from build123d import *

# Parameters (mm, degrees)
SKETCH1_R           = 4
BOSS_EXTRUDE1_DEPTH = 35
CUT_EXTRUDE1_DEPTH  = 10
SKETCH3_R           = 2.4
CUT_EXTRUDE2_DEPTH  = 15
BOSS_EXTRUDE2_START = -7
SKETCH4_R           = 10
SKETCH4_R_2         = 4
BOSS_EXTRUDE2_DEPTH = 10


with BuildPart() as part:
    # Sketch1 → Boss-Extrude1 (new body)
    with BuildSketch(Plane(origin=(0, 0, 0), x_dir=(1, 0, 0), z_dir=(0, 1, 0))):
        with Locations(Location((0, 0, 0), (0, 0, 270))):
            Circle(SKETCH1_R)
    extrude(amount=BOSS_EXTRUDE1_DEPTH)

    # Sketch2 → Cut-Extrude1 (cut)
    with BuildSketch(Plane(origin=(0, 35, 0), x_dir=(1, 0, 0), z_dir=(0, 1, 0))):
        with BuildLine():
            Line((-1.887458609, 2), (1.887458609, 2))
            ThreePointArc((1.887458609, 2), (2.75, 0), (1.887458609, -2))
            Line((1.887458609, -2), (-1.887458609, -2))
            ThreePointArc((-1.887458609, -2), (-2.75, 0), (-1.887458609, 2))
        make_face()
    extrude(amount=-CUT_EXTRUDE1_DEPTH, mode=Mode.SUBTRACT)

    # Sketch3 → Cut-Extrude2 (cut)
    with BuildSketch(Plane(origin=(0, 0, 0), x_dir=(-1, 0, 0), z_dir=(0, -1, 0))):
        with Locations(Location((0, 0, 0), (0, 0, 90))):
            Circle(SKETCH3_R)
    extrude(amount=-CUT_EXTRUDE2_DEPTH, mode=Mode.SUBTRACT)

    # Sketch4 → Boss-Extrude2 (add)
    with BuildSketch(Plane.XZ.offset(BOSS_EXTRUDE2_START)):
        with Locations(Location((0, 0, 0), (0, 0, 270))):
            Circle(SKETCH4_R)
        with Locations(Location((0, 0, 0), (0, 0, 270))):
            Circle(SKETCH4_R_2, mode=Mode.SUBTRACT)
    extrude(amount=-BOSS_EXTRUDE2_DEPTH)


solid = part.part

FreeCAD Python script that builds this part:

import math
import FreeCAD as App
import Part
import Sketcher

doc = App.newDocument("Part")
body = doc.addObject("PartDesign::Body", "Body")

# Sketch on XZ plane
sketch1 = body.newObject("Sketcher::SketchObject", "Sketch")
sketch1.AttachmentSupport = (doc.getObject("XZ_Plane"), [""])
sketch1.MapMode = "FlatFace"
sketch1.addGeometry(Part.Circle(App.Vector(0, 0, 0), App.Vector(0, 0, 1), 4), False)
sketch1.addConstraint([
    Sketcher.Constraint("Coincident", 0, 3, -1, 1),
    Sketcher.Constraint("Diameter", 0, 8.0),
])
pad1 = body.newObject("PartDesign::Pad", "Pad")
pad1.Profile = sketch1
pad1.Length = 35
pad1.Reversed = True

# Sketch on XZ plane
sketch2 = body.newObject("Sketcher::SketchObject", "Sketch001")
sketch2.AttachmentSupport = (doc.getObject("XZ_Plane"), [""])
sketch2.MapMode = "FlatFace"
sketch2.AttachmentOffset = App.Placement(App.Vector(0, 0, -35), App.Rotation())
sketch2.addGeometry([
    Part.LineSegment(App.Vector(1.887459, -2, 0), App.Vector(-1.887459, -2, 0)),
    Part.ArcOfCircle(Part.Circle(App.Vector(0, 0, 0), App.Vector(0, 0, 1), 2.75), math.radians(133.341758), math.radians(226.658242)),
    Part.LineSegment(App.Vector(-1.887459, 2, 0), App.Vector(1.887459, 2, 0)),
    Part.ArcOfCircle(Part.Circle(App.Vector(0, 0, 0), App.Vector(0, 0, 1), 2.75), math.radians(-46.658242), math.radians(46.658242)),
], False)
sketch2.addConstraint([
    Sketcher.Constraint("Coincident", 0, 2, 1, 2),
    Sketcher.Constraint("Coincident", 1, 1, 2, 1),
    Sketcher.Constraint("Coincident", 2, 2, 3, 2),
    Sketcher.Constraint("Coincident", 3, 1, 0, 1),
    Sketcher.Constraint("Horizontal", 0),
    Sketcher.Constraint("Horizontal", 2),
    Sketcher.Constraint("Coincident", 1, 3, -1, 1),
    Sketcher.Constraint("Coincident", 3, 3, -1, 1),
    Sketcher.Constraint("Equal", 1, 3),
    Sketcher.Constraint("Vertical", 0, 2, 1, 1),
    Sketcher.Constraint("Radius", 1, 2.75),
    Sketcher.Constraint("DistanceY", 0, 2, -1, 1, 2.0),
])
pocket1 = body.newObject("PartDesign::Pocket", "Pocket")
pocket1.Profile = sketch2
pocket1.Length = 10
pocket1.Reversed = True

# Sketch on XZ plane
sketch3 = body.newObject("Sketcher::SketchObject", "Sketch002")
sketch3.AttachmentSupport = (doc.getObject("XZ_Plane"), [""])
sketch3.MapMode = "FlatFace"
sketch3.addGeometry(Part.Circle(App.Vector(0, 0, 0), App.Vector(0, 0, 1), 2.4), False)
sketch3.addConstraint([
    Sketcher.Constraint("Coincident", 0, 3, -1, 1),
    Sketcher.Constraint("Diameter", 0, 4.8),
])
pocket2 = body.newObject("PartDesign::Pocket", "Pocket001")
pocket2.Profile = sketch3
pocket2.Length = 15

# Sketch on XZ plane
sketch4 = body.newObject("Sketcher::SketchObject", "Sketch003")
sketch4.AttachmentSupport = (doc.getObject("XZ_Plane"), [""])
sketch4.MapMode = "FlatFace"
sketch4.AttachmentOffset = App.Placement(App.Vector(0, 0, -7), App.Rotation())
sketch4.addGeometry([
    Part.Circle(App.Vector(0, 0, 0), App.Vector(0, 0, 1), 10),
    Part.Circle(App.Vector(0, 0, 0), App.Vector(0, 0, 1), 4),
], False)
sketch4.addConstraint([
    Sketcher.Constraint("Coincident", 0, 3, -1, 1),
    Sketcher.Constraint("Coincident", 1, 3, -1, 1),
    Sketcher.Constraint("Diameter", 0, 20.0),
    Sketcher.Constraint("Diameter", 1, 8.0),
])
pad2 = body.newObject("PartDesign::Pad", "Pad001")
pad2.Profile = sketch4
pad2.Length = 10
pad2.Reversed = True

doc.recompute()
